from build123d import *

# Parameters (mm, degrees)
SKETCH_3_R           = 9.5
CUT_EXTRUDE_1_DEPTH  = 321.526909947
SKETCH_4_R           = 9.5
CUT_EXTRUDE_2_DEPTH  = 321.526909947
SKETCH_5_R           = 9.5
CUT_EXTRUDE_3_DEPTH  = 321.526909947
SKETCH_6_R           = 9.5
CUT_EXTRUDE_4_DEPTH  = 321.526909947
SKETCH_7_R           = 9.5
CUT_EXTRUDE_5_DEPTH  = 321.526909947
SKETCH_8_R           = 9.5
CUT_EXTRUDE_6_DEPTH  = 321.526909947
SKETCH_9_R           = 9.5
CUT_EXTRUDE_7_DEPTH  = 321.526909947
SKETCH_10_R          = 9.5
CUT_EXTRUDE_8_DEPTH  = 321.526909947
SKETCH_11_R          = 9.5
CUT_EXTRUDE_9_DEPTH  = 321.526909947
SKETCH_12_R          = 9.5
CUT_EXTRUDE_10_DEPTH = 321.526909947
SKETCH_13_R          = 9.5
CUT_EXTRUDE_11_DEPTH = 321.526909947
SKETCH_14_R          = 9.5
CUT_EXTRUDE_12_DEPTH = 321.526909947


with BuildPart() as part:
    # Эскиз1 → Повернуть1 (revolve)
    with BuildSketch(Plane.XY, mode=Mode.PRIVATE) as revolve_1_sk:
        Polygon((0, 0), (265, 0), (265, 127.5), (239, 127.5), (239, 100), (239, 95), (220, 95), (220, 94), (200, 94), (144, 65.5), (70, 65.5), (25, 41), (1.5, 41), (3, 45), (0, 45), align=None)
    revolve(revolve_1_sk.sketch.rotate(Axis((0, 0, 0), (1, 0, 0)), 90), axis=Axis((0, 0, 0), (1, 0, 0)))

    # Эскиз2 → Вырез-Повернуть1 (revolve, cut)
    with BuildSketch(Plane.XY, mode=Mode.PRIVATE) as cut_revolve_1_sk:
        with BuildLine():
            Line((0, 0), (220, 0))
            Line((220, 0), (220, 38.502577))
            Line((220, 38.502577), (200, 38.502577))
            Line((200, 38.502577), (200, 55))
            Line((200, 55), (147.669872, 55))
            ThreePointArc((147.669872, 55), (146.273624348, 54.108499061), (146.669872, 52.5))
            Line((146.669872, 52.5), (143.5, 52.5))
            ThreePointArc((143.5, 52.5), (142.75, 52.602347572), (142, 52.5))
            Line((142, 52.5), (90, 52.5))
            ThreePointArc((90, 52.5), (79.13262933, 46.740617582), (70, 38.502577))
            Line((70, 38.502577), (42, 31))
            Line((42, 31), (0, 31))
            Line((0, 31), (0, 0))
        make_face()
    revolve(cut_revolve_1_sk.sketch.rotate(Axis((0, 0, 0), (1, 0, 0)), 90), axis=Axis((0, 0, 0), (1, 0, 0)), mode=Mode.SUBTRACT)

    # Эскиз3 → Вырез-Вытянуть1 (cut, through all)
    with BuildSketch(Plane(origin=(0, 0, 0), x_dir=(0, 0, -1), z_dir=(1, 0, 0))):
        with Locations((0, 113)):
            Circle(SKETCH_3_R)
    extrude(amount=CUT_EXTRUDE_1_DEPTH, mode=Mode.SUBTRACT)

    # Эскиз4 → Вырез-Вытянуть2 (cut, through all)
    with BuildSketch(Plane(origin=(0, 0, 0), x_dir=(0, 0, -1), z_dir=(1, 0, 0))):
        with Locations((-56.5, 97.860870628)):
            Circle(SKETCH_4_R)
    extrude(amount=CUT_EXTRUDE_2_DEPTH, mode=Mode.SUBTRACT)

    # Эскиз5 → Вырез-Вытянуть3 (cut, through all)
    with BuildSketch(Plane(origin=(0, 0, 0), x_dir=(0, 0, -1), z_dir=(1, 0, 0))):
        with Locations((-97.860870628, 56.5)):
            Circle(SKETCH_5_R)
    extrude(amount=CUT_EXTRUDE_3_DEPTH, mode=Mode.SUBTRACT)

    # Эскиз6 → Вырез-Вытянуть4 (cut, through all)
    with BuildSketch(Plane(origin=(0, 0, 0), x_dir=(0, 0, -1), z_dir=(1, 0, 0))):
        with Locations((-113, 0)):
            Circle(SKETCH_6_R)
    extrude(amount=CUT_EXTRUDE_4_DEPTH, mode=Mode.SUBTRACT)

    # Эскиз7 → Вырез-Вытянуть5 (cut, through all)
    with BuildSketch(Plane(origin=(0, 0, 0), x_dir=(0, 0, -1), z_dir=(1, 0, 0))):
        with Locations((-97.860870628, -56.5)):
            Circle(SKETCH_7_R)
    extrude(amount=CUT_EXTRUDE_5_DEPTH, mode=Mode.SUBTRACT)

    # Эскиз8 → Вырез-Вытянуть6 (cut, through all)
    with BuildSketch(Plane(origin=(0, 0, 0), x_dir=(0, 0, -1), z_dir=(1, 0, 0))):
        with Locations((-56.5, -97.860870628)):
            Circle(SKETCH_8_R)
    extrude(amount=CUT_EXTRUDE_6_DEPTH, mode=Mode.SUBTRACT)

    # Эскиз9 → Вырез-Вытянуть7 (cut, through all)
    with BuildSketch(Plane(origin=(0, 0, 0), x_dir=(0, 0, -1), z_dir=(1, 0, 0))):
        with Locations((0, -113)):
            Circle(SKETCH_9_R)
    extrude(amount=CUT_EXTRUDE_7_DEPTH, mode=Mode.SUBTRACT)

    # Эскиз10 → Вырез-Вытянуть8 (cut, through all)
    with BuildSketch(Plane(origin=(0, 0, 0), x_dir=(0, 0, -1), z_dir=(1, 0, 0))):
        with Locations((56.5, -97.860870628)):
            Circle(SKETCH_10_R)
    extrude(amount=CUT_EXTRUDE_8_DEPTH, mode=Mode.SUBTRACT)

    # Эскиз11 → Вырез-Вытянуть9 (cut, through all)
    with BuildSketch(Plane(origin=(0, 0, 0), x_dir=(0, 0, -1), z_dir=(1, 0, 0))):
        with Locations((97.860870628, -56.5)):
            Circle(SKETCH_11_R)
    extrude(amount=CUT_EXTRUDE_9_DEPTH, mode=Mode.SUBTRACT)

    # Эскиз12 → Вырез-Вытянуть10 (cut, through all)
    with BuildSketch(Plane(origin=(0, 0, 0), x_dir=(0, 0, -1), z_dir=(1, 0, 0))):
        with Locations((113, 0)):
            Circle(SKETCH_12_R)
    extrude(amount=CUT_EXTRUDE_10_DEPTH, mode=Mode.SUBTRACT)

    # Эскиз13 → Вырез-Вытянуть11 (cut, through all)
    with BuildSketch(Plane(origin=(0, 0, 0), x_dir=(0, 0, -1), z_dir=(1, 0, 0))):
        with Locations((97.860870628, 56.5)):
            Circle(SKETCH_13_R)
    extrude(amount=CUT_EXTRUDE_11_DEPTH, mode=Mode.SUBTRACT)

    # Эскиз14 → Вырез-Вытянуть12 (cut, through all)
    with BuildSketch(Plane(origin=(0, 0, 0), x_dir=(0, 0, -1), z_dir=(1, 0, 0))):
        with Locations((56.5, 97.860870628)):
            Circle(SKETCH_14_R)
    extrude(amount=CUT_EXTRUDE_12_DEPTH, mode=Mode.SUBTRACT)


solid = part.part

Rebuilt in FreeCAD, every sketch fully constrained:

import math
import FreeCAD as App
import Part
import Sketcher
from FreeCAD import Vector
Q = App.Units.Quantity

doc = App.newDocument("Part")
params = doc.addObject("Spreadsheet::Sheet", "Params")
for row, (alias, value) in enumerate([
    ("sketch1_width", "265 mm"),
    ("sketch1_width2", "26 mm"),
    ("sketch1_width3", "19 mm"),
    ("sketch1_width4", "20 mm"),
    ("sketch1_width5", "74 mm"),
    ("revolution_angle", "360 deg"),
    ("sketch2_radius", "49.999998 mm"),
    ("sketch2_width", "220 mm"),
    ("sketch2_width2", "20 mm"),
    ("sketch2_width3", "52 mm"),
    ("sketch2_width4", "42 mm"),
    ("groove_angle", "360 deg"),
    ("sketch3_diameter", "19 mm"),
    ("sketch4_diameter", "19 mm"),
    ("sketch5_diameter", "19 mm"),
    ("sketch6_diameter", "19 mm"),
    ("sketch7_diameter", "19 mm"),
    ("sketch8_diameter", "19 mm"),
    ("sketch9_diameter", "19 mm"),
    ("sketch10_diameter", "19 mm"),
    ("sketch11_diameter", "19 mm"),
    ("sketch12_diameter", "19 mm"),
    ("sketch13_diameter", "19 mm"),
    ("sketch14_diameter", "19 mm"),
], start=1):
    params.set(f"A{row}", alias)
    params.set(f"B{row}", "=" + value)
    params.setAlias(f"B{row}", alias)

body = doc.addObject("PartDesign::Body", "Body")

# Sketch on XY plane
sketch1 = body.newObject("Sketcher::SketchObject", "Sketch")
sketch1.AttachmentSupport = (doc.getObject("XY_Plane"), [""])
sketch1.MapMode = "FlatFace"
sketch1.addGeometry(Part.LineSegment(Vector(0, 0, 0), Vector(265, 0, 0)), False)
sketch1.addGeometry(Part.LineSegment(Vector(265, 0, 0), Vector(265, 127.5, 0)), False)
sketch1.addGeometry(Part.LineSegment(Vector(265, 127.5, 0), Vector(239, 127.5, 0)), False)
sketch1.addGeometry(Part.LineSegment(Vector(239, 127.5, 0), Vector(239, 95, 0)), False)
sketch1.addGeometry(Part.LineSegment(Vector(239, 95, 0), Vector(220, 95, 0)), False)
sketch1.addGeometry(Part.LineSegment(Vector(220, 95, 0), Vector(220, 94, 0)), False)
sketch1.addGeometry(Part.LineSegment(Vector(220, 94, 0), Vector(200, 94, 0)), False)
sketch1.addGeometry(Part.LineSegment(Vector(200, 94, 0), Vector(144, 65.5, 0)), False)
sketch1.addGeometry(Part.LineSegment(Vector(144, 65.5, 0), Vector(70, 65.5, 0)), False)
sketch1.addGeometry(Part.LineSegment(Vector(70, 65.5, 0), Vector(25, 41, 0)), False)
sketch1.addGeometry(Part.LineSegment(Vector(25, 41, 0), Vector(1.5, 41, 0)), False)
sketch1.addGeometry(Part.LineSegment(Vector(1.5, 41, 0), Vector(3, 45, 0)), False)
sketch1.addGeometry(Part.LineSegment(Vector(3, 45, 0), Vector(0, 45, 0)), False)
sketch1.addGeometry(Part.LineSegment(Vector(0, 45, 0), Vector(0, 0, 0)), False)
sketch1.addConstraint(Sketcher.Constraint("Coincident", 0, 2, 1, 1))
sketch1.addConstraint(Sketcher.Constraint("Coincident", 1, 2, 2, 1))
sketch1.addConstraint(Sketcher.Constraint("Coincident", 2, 2, 3, 1))
sketch1.addConstraint(Sketcher.Constraint("Coincident", 3, 2, 4, 1))
sketch1.addConstraint(Sketcher.Constraint("Coincident", 4, 2, 5, 1))
sketch1.addConstraint(Sketcher.Constraint("Coincident", 5, 2, 6, 1))
sketch1.addConstraint(Sketcher.Constraint("Coincident", 6, 2, 7, 1))
sketch1.addConstraint(Sketcher.Constraint("Coincident", 7, 2, 8, 1))
sketch1.addConstraint(Sketcher.Constraint("Coincident", 8, 2, 9, 1))
sketch1.addConstraint(Sketcher.Constraint("Coincident", 9, 2, 10, 1))
sketch1.addConstraint(Sketcher.Constraint("Coincident", 10, 2, 11, 1))
sketch1.addConstraint(Sketcher.Constraint("Coincident", 11, 2, 12, 1))
sketch1.addConstraint(Sketcher.Constraint("Coincident", 12, 2, 13, 1))
sketch1.addConstraint(Sketcher.Constraint("Coincident", 13, 2, 0, 1))
sketch1.addConstraint(Sketcher.Constraint("Horizontal", 0))
sketch1.addConstraint(Sketcher.Constraint("Vertical", 1))
sketch1.addConstraint(Sketcher.Constraint("Horizontal", 2))
sketch1.addConstraint(Sketcher.Constraint("Vertical", 3))
sketch1.addConstraint(Sketcher.Constraint("Horizontal", 4))
sketch1.addConstraint(Sketcher.Constraint("Vertical", 5))
sketch1.addConstraint(Sketcher.Constraint("Horizontal", 6))
sketch1.addConstraint(Sketcher.Constraint("Horizontal", 8))
sketch1.addConstraint(Sketcher.Constraint("Horizontal", 10))
sketch1.addConstraint(Sketcher.Constraint("Horizontal", 12))
sketch1.addConstraint(Sketcher.Constraint("Vertical", 13))
sketch1.addConstraint(Sketcher.Constraint("Coincident", 13, 2, -1, 1))
sketch1.addConstraint(Sketcher.Constraint("DistanceX", 0, 1, 0, 2, 265.0))
sketch1.addConstraint(Sketcher.Constraint("DistanceX", 2, 2, 2, 1, 26.0))
sketch1.addConstraint(Sketcher.Constraint("DistanceX", 4, 2, 4, 1, 19.0))
sketch1.addConstraint(Sketcher.Constraint("DistanceX", 6, 2, 6, 1, 20.0))
sketch1.addConstraint(Sketcher.Constraint("DistanceX", 8, 2, 8, 1, 74.0))
sketch1.addConstraint(Sketcher.Constraint("DistanceX", 12, 2, 12, 1, 3.0))
sketch1.addConstraint(Sketcher.Constraint("DistanceY", 5, 2, 5, 1, 1.0))
sketch1.addConstraint(Sketcher.Constraint("DistanceY", 13, 2, 13, 1, 45.0))
sketch1.addConstraint(Sketcher.Constraint("DistanceX", 10, 2, 10, 1, 23.5))
sketch1.addConstraint(Sketcher.Constraint("DistanceY", 1, 1, 1, 2, 127.5))
sketch1.addConstraint(Sketcher.Constraint("DistanceY", 3, 2, 3, 1, 32.5))
sketch1.addConstraint(Sketcher.Constraint("DistanceX", -1, 1, 7, 2, 144.0))
sketch1.addConstraint(Sketcher.Constraint("DistanceX", -1, 1, 9, 2, 25.0))
sketch1.addConstraint(Sketcher.Constraint("DistanceY", -1, 1, 9, 2, 41.0))
sketch1.addConstraint(Sketcher.Constraint("DistanceY", 7, 2, 2, 2, 62.0))
sketch1.setExpression("Constraints[26]", "Params.sketch1_width")
sketch1.setExpression("Constraints[27]", "Params.sketch1_width2")
sketch1.setExpression("Constraints[28]", "Params.sketch1_width3")
sketch1.setExpression("Constraints[29]", "Params.sketch1_width4")
sketch1.setExpression("Constraints[30]", "Params.sketch1_width5")
revolution = body.newObject("PartDesign::Revolution", "Revolution")
revolution.Profile = sketch1
revolution.ReferenceAxis = (sketch1, ["H_Axis"])
revolution.setExpression("Angle", "Params.revolution_angle")

# Sketch on XY plane
sketch2 = body.newObject("Sketcher::SketchObject", "Sketch001")
sketch2.AttachmentSupport = (doc.getObject("XY_Plane"), [""])
sketch2.MapMode = "FlatFace"
sketch2.addGeometry(Part.LineSegment(Vector(0, 0, 0), Vector(220, 0, 0)), False)
sketch2.addGeometry(Part.LineSegment(Vector(220, 0, 0), Vector(220, 38.5, 0)), False)
sketch2.addGeometry(Part.LineSegment(Vector(220, 38.5, 0), Vector(200, 38.5, 0)), False)
sketch2.addGeometry(Part.LineSegment(Vector(200, 38.5, 0), Vector(200, 55, 0)), False)
sketch2.addGeometry(Part.LineSegment(Vector(200, 55, 0), Vector(147.7, 55, 0)), False)
sketch2.addGeometry(Part.ArcOfCircle(Part.Circle(Vector(147.6, 53.6, 0), Vector(0, 0, 1), 1.4), math.radians(87), math.radians(229)), False)
sketch2.addGeometry(Part.LineSegment(Vector(146.7, 52.5, 0), Vector(143.5, 52.5, 0)), False)
sketch2.addGeometry(Part.ArcOfCircle(Part.Circle(Vector(142.8, 49.8, 0), Vector(0, 0, 1), 2.8), math.radians(74), math.radians(106)), False)
sketch2.addGeometry(Part.LineSegment(Vector(142, 52.5, 0), Vector(90, 52.5, 0)), False)
sketch2.addGeometry(Part.ArcOfCircle(Part.Circle(Vector(107.8, 5.8, 0), Vector(0, 0, 1), 50), math.radians(111), math.radians(139)), False)
sketch2.addGeometry(Part.LineSegment(Vector(70, 38.5, 0), Vector(42, 31, 0)), False)
sketch2.addGeometry(Part.LineSegment(Vector(42, 31, 0), Vector(0, 31, 0)), False)
sketch2.addGeometry(Part.LineSegment(Vector(0, 31, 0), Vector(0, 0, 0)), False)
sketch2.addConstraint(Sketcher.Constraint("Coincident", 0, 2, 1, 1))
sketch2.addConstraint(Sketcher.Constraint("Coincident", 1, 2, 2, 1))
sketch2.addConstraint(Sketcher.Constraint("Coincident", 2, 2, 3, 1))
sketch2.addConstraint(Sketcher.Constraint("Coincident", 3, 2, 4, 1))
sketch2.addConstraint(Sketcher.Constraint("Coincident", 4, 2, 5, 1))
sketch2.addConstraint(Sketcher.Constraint("Coincident", 5, 2, 6, 1))
sketch2.addConstraint(Sketcher.Constraint("Coincident", 6, 2, 7, 1))
sketch2.addConstraint(Sketcher.Constraint("Coincident", 7, 2, 8, 1))
sketch2.addConstraint(Sketcher.Constraint("Coincident", 8, 2, 9, 1))
sketch2.addConstraint(Sketcher.Constraint("Coincident", 9, 2, 10, 1))
sketch2.addConstraint(Sketcher.Constraint("Coincident", 10, 2, 11, 1))
sketch2.addConstraint(Sketcher.Constraint("Coincident", 11, 2, 12, 1))
sketch2.addConstraint(Sketcher.Constraint("Coincident", 12, 2, 0, 1))
sketch2.addConstraint(Sketcher.Constraint("Horizontal", 0))
sketch2.addConstraint(Sketcher.Constraint("Vertical", 1))
sketch2.addConstraint(Sketcher.Constraint("Horizontal", 2))
sketch2.addConstraint(Sketcher.Constraint("Vertical", 3))
sketch2.addConstraint(Sketcher.Constraint("Horizontal", 4))
sketch2.addConstraint(Sketcher.Constraint("Horizontal", 6))
sketch2.addConstraint(Sketcher.Constraint("Horizontal", 8))
sketch2.addConstraint(Sketcher.Constraint("Horizontal", 11))
sketch2.addConstraint(Sketcher.Constraint("Vertical", 12))
sketch2.addConstraint(Sketcher.Constraint("Coincident", 12, 2, -1, 1))
sketch2.addConstraint(Sketcher.Constraint("Horizontal", 6, 2, 7, 2))
sketch2.addConstraint(Sketcher.Constraint("Horizontal", 2, 2, 9, 2))
sketch2.addConstraint(Sketcher.Constraint("Radius", 9, 49.999998))
sketch2.addConstraint(Sketcher.Constraint("DistanceX", 0, 1, 0, 2, 220.0))
sketch2.addConstraint(Sketcher.Constraint("DistanceX", 2, 2, 2, 1, 20.0))
sketch2.addConstraint(Sketcher.Constraint("DistanceX", 8, 2, 8, 1, 52.0))
sketch2.addConstraint(Sketcher.Constraint("DistanceX", 11, 2, 11, 1, 42.0))
sketch2.addConstraint(Sketcher.Constraint("DistanceY", 12, 2, 12, 1, 31.0))
sketch2.addConstraint(Sketcher.Constraint("Angle", 10, Q("-165.000001 deg")))
sketch2.addConstraint(Sketcher.Constraint("DistanceY", -1, 1, 3, 2, 55.0))
sketch2.addConstraint(Sketcher.Constraint("DistanceX", -1, 1, 7, 2, 142.0))
sketch2.addConstraint(Sketcher.Constraint("DistanceX", -1, 1, 9, 2, 70.0))
sketch2.addConstraint(Sketcher.Constraint("DistanceX", 5, 2, 4, 2, 1.0))
sketch2.addConstraint(Sketcher.Constraint("DistanceY", -1, 1, 5, 2, 52.5))
sketch2.addConstraint(Sketcher.Constraint("DistanceX", -1, 1, 6, 2, 143.5))
sketch2.addConstraint(Sketcher.Constraint("Radius", 5, 1.421483))
sketch2.addConstraint(Sketcher.Constraint("Radius", 7, 2.799163))
sketch2.addConstraint(Sketcher.Constraint("DistanceX", 4, 2, 4, 1, 52.330128))
sketch2.setExpression("Constraints[25]", "Params.sketch2_radius")
sketch2.setExpression("Constraints[26]", "Params.sketch2_width")
sketch2.setExpression("Constraints[27]", "Params.sketch2_width2")
sketch2.setExpression("Constraints[28]", "Params.sketch2_width3")
sketch2.setExpression("Constraints[29]", "Params.sketch2_width4")
groove = body.newObject("PartDesign::Groove", "Groove")
groove.Profile = sketch2
groove.ReferenceAxis = (sketch2, ["H_Axis"])
groove.setExpression("Angle", "Params.groove_angle")

# Sketch on YZ plane
sketch3 = body.newObject("Sketcher::SketchObject", "Sketch002")
sketch3.AttachmentSupport = (doc.getObject("YZ_Plane"), [""])
sketch3.MapMode = "FlatFace"
sketch3.addGeometry(Part.Circle(Vector(113, 0, 0), Vector(0, 0, 1), 10), False)
sketch3.addConstraint(Sketcher.Constraint("PointOnObject", 0, 3, -1))
sketch3.addConstraint(Sketcher.Constraint("Diameter", 0, 19.0))
sketch3.addConstraint(Sketcher.Constraint("DistanceX", -1, 1, 0, 3, 113.0))
sketch3.setExpression("Constraints[1]", "Params.sketch3_diameter")
pocket1 = body.newObject("PartDesign::Pocket", "Pocket")
pocket1.Profile = sketch3
pocket1.Type = "ThroughAll"
pocket1.Reversed = True

# Sketch on YZ plane
sketch4 = body.newObject("Sketcher::SketchObject", "Sketch003")
sketch4.AttachmentSupport = (doc.getObject("YZ_Plane"), [""])
sketch4.MapMode = "FlatFace"
sketch4.addGeometry(Part.Circle(Vector(98, 56, 0), Vector(0, 0, 1), 10), False)
sketch4.addConstraint(Sketcher.Constraint("Diameter", 0, 19.0))
sketch4.addConstraint(Sketcher.Constraint("DistanceY", -1, 1, 0, 3, 56.5))
sketch4.addConstraint(Sketcher.Constraint("DistanceX", -1, 1, 0, 3, 97.860871))
sketch4.setExpression("Constraints[0]", "Params.sketch4_diameter")
pocket2 = body.newObject("PartDesign::Pocket", "Pocket001")
pocket2.Profile = sketch4
pocket2.Type = "ThroughAll"
pocket2.Reversed = True

# Sketch on YZ plane
sketch5 = body.newObject("Sketcher::SketchObject", "Sketch004")
sketch5.AttachmentSupport = (doc.getObject("YZ_Plane"), [""])
sketch5.MapMode = "FlatFace"
sketch5.addGeometry(Part.Circle(Vector(56, 98, 0), Vector(0, 0, 1), 10), False)
sketch5.addConstraint(Sketcher.Constraint("Diameter", 0, 19.0))
sketch5.addConstraint(Sketcher.Constraint("DistanceX", -1, 1, 0, 3, 56.5))
sketch5.addConstraint(Sketcher.Constraint("DistanceY", -1, 1, 0, 3, 97.860871))
sketch5.setExpression("Constraints[0]", "Params.sketch5_diameter")
pocket3 = body.newObject("PartDesign::Pocket", "Pocket002")
pocket3.Profile = sketch5
pocket3.Type = "ThroughAll"
pocket3.Reversed = True

# Sketch on YZ plane
sketch6 = body.newObject("Sketcher::SketchObject", "Sketch005")
sketch6.AttachmentSupport = (doc.getObject("YZ_Plane"), [""])
sketch6.MapMode = "FlatFace"
sketch6.addGeometry(Part.Circle(Vector(0, 113, 0), Vector(0, 0, 1), 10), False)
sketch6.addConstraint(Sketcher.Constraint("PointOnObject", 0, 3, -2))
sketch6.addConstraint(Sketcher.Constraint("Diameter", 0, 19.0))
sketch6.addConstraint(Sketcher.Constraint("DistanceY", -1, 1, 0, 3, 113.0))
sketch6.setExpression("Constraints[1]", "Params.sketch6_diameter")
pocket4 = body.newObject("PartDesign::Pocket", "Pocket003")
pocket4.Profile = sketch6
pocket4.Type = "ThroughAll"
pocket4.Reversed = True

# Sketch on YZ plane
sketch7 = body.newObject("Sketcher::SketchObject", "Sketch006")
sketch7.AttachmentSupport = (doc.getObject("YZ_Plane"), [""])
sketch7.MapMode = "FlatFace"
sketch7.addGeometry(Part.Circle(Vector(-56, 98, 0), Vector(0, 0, 1), 10), False)
sketch7.addConstraint(Sketcher.Constraint("Diameter", 0, 19.0))
sketch7.addConstraint(Sketcher.Constraint("DistanceX", 0, 3, -1, 1, 56.5))
sketch7.addConstraint(Sketcher.Constraint("DistanceY", -1, 1, 0, 3, 97.860871))
sketch7.setExpression("Constraints[0]", "Params.sketch7_diameter")
pocket5 = body.newObject("PartDesign::Pocket", "Pocket004")
pocket5.Profile = sketch7
pocket5.Type = "ThroughAll"
pocket5.Reversed = True

# Sketch on YZ plane
sketch8 = body.newObject("Sketcher::SketchObject", "Sketch007")
sketch8.AttachmentSupport = (doc.getObject("YZ_Plane"), [""])
sketch8.MapMode = "FlatFace"
sketch8.addGeometry(Part.Circle(Vector(-98, 56, 0), Vector(0, 0, 1), 10), False)
sketch8.addConstraint(Sketcher.Constraint("Diameter", 0, 19.0))
sketch8.addConstraint(Sketcher.Constraint("DistanceY", -1, 1, 0, 3, 56.5))
sketch8.addConstraint(Sketcher.Constraint("DistanceX", 0, 3, -1, 1, 97.860871))
sketch8.setExpression("Constraints[0]", "Params.sketch8_diameter")
pocket6 = body.newObject("PartDesign::Pocket", "Pocket005")
pocket6.Profile = sketch8
pocket6.Type = "ThroughAll"
pocket6.Reversed = True

# Sketch on YZ plane
sketch9 = body.newObject("Sketcher::SketchObject", "Sketch008")
sketch9.AttachmentSupport = (doc.getObject("YZ_Plane"), [""])
sketch9.MapMode = "FlatFace"
sketch9.addGeometry(Part.Circle(Vector(-113, 0, 0), Vector(0, 0, 1), 10), False)
sketch9.addConstraint(Sketcher.Constraint("PointOnObject", 0, 3, -1))
sketch9.addConstraint(Sketcher.Constraint("Diameter", 0, 19.0))
sketch9.addConstraint(Sketcher.Constraint("DistanceX", 0, 3, -1, 1, 113.0))
sketch9.setExpression("Constraints[1]", "Params.sketch9_diameter")
pocket7 = body.newObject("PartDesign::Pocket", "Pocket006")
pocket7.Profile = sketch9
pocket7.Type = "ThroughAll"
pocket7.Reversed = True

# Sketch on YZ plane
sketch10 = body.newObject("Sketcher::SketchObject", "Sketch009")
sketch10.AttachmentSupport = (doc.getObject("YZ_Plane"), [""])
sketch10.MapMode = "FlatFace"
sketch10.addGeometry(Part.Circle(Vector(-98, -56, 0), Vector(0, 0, 1), 10), False)
sketch10.addConstraint(Sketcher.Constraint("Diameter", 0, 19.0))
sketch10.addConstraint(Sketcher.Constraint("DistanceY", 0, 3, -1, 1, 56.5))
sketch10.addConstraint(Sketcher.Constraint("DistanceX", 0, 3, -1, 1, 97.860871))
sketch10.setExpression("Constraints[0]", "Params.sketch10_diameter")
pocket8 = body.newObject("PartDesign::Pocket", "Pocket007")
pocket8.Profile = sketch10
pocket8.Type = "ThroughAll"
pocket8.Reversed = True

# Sketch on YZ plane
sketch11 = body.newObject("Sketcher::SketchObject", "Sketch010")
sketch11.AttachmentSupport = (doc.getObject("YZ_Plane"), [""])
sketch11.MapMode = "FlatFace"
sketch11.addGeometry(Part.Circle(Vector(-56, -98, 0), Vector(0, 0, 1), 10), False)
sketch11.addConstraint(Sketcher.Constraint("Diameter", 0, 19.0))
sketch11.addConstraint(Sketcher.Constraint("DistanceX", 0, 3, -1, 1, 56.5))
sketch11.addConstraint(Sketcher.Constraint("DistanceY", 0, 3, -1, 1, 97.860871))
sketch11.setExpression("Constraints[0]", "Params.sketch11_diameter")
pocket9 = body.newObject("PartDesign::Pocket", "Pocket008")
pocket9.Profile = sketch11
pocket9.Type = "ThroughAll"
pocket9.Reversed = True

# Sketch on YZ plane
sketch12 = body.newObject("Sketcher::SketchObject", "Sketch011")
sketch12.AttachmentSupport = (doc.getObject("YZ_Plane"), [""])
sketch12.MapMode = "FlatFace"
sketch12.addGeometry(Part.Circle(Vector(0, -113, 0), Vector(0, 0, 1), 10), False)
sketch12.addConstraint(Sketcher.Constraint("PointOnObject", 0, 3, -2))
sketch12.addConstraint(Sketcher.Constraint("Diameter", 0, 19.0))
sketch12.addConstraint(Sketcher.Constraint("DistanceY", 0, 3, -1, 1, 113.0))
sketch12.setExpression("Constraints[1]", "Params.sketch12_diameter")
pocket10 = body.newObject("PartDesign::Pocket", "Pocket009")
pocket10.Profile = sketch12
pocket10.Type = "ThroughAll"
pocket10.Reversed = True

# Sketch on YZ plane
sketch13 = body.newObject("Sketcher::SketchObject", "Sketch012")
sketch13.AttachmentSupport = (doc.getObject("YZ_Plane"), [""])
sketch13.MapMode = "FlatFace"
sketch13.addGeometry(Part.Circle(Vector(56, -98, 0), Vector(0, 0, 1), 10), False)
sketch13.addConstraint(Sketcher.Constraint("Diameter", 0, 19.0))
sketch13.addConstraint(Sketcher.Constraint("DistanceX", -1, 1, 0, 3, 56.5))
sketch13.addConstraint(Sketcher.Constraint("DistanceY", 0, 3, -1, 1, 97.860871))
sketch13.setExpression("Constraints[0]", "Params.sketch13_diameter")
pocket11 = body.newObject("PartDesign::Pocket", "Pocket010")
pocket11.Profile = sketch13
pocket11.Type = "ThroughAll"
pocket11.Reversed = True

# Sketch on YZ plane
sketch14 = body.newObject("Sketcher::SketchObject", "Sketch013")
sketch14.AttachmentSupport = (doc.getObject("YZ_Plane"), [""])
sketch14.MapMode = "FlatFace"
sketch14.addGeometry(Part.Circle(Vector(98, -56, 0), Vector(0, 0, 1), 10), False)
sketch14.addConstraint(Sketcher.Constraint("Diameter", 0, 19.0))
sketch14.addConstraint(Sketcher.Constraint("DistanceY", 0, 3, -1, 1, 56.5))
sketch14.addConstraint(Sketcher.Constraint("DistanceX", -1, 1, 0, 3, 97.860871))
sketch14.setExpression("Constraints[0]", "Params.sketch14_diameter")
pocket12 = body.newObject("PartDesign::Pocket", "Pocket011")
pocket12.Profile = sketch14
pocket12.Type = "ThroughAll"
pocket12.Reversed = True

doc.recompute()
